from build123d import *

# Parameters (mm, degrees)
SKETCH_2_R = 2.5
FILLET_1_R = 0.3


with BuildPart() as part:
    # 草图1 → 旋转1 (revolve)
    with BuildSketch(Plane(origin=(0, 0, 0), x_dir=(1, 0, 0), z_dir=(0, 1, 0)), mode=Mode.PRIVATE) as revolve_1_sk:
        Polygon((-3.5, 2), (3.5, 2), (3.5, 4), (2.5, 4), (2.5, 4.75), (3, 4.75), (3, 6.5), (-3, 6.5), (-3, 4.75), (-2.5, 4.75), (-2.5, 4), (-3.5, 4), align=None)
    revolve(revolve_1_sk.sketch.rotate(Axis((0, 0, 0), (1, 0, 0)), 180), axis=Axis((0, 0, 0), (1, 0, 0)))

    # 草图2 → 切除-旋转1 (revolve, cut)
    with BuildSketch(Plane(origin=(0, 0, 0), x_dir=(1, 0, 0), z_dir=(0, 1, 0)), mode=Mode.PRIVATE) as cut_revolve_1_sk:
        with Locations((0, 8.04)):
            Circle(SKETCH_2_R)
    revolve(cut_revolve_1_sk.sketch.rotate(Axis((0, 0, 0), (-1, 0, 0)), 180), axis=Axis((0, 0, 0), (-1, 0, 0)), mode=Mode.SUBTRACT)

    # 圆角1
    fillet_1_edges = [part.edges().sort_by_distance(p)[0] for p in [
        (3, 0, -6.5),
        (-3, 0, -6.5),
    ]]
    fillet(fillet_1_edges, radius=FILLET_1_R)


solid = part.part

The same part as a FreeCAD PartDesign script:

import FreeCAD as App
import Part
import Sketcher

V = App.Vector
Q = App.Units.Quantity


def edges_at(feature, points):
    """Names of the edges that pass closest to the given points."""
    edges = feature.Shape.Edges
    near = lambda p: min(range(len(edges)), key=lambda i: edges[i].distToShape(Part.Vertex(*p))[0])
    return sorted({f"Edge{near(p) + 1}" for p in points})


def add_polygon(sketch, points):
    """Adds a closed chain of lines whose ends are joined by coincident constraints."""
    first, n = sketch.GeometryCount, len(points)
    for a, b in zip(points, points[1:] + points[:1]):
        sketch.addGeometry(Part.LineSegment(App.Vector(*a, 0), App.Vector(*b, 0)), False)
    for i in range(n):
        sketch.addConstraint(Sketcher.Constraint("Coincident", first + i, 2, first + (i + 1) % n, 1))

doc = App.newDocument("Part")
body = doc.addObject("PartDesign::Body", "Body")

# Sketch on XZ plane
sketch1 = body.newObject("Sketcher::SketchObject", "Sketch")
sketch1.AttachmentSupport = (doc.getObject("XZ_Plane"), [""])
sketch1.MapMode = "FlatFace"
add_polygon(sketch1, [(-3.5, -2), (3.5, -2), (3.5, -4), (2.5, -4), (2.5, -4.75), (3, -4.75), (3, -6.5), (-3, -6.5), (-3, -4.75), (-2.5, -4.75), (-2.5, -4), (-3.5, -4)])  # lines 0-11
sketch1.addConstraint([
    Sketcher.Constraint("Horizontal", 0),
    Sketcher.Constraint("Vertical", 1),
    Sketcher.Constraint("Horizontal", 2),
    Sketcher.Constraint("Vertical", 3),
    Sketcher.Constraint("Horizontal", 4),
    Sketcher.Constraint("Vertical", 5),
    Sketcher.Constraint("Horizontal", 6),
    Sketcher.Constraint("Vertical", 7),
    Sketcher.Constraint("Horizontal", 8),
    Sketcher.Constraint("Vertical", 9),
    Sketcher.Constraint("Horizontal", 10),
    Sketcher.Constraint("Vertical", 11),
    Sketcher.Constraint("Symmetric", 4, 2, 7, 2, -2),
    Sketcher.Constraint("Symmetric", 2, 2, 9, 2, -2),
    Sketcher.Constraint("Equal", 2, 10),
    Sketcher.Constraint("DistanceX", 0, 1, 0, 2, Q("7 mm")),
    Sketcher.Constraint("DistanceX", 2, 2, 2, 1, Q("1 mm")),
    Sketcher.Constraint("DistanceX", 6, 2, 6, 1, Q("6 mm")),
    Sketcher.Constraint("DistanceY", 1, 2, 1, 1, Q("2 mm")),
    Sketcher.Constraint("DistanceY", 0, 2, -1, 1, Q("2 mm")),
    Sketcher.Constraint("DistanceY", 3, 2, 3, 1, Q("0.75 mm")),
    Sketcher.Constraint("DistanceY", 5, 2, 5, 1, Q("1.75 mm")),
])
revolution = body.newObject("PartDesign::Revolution", "Revolution")
revolution.Profile = sketch1
revolution.ReferenceAxis = (sketch1, ["H_Axis"])
revolution.Angle = 360

# Sketch on XZ plane
sketch2 = body.newObject("Sketcher::SketchObject", "Sketch001")
sketch2.AttachmentSupport = (doc.getObject("XZ_Plane"), [""])
sketch2.MapMode = "FlatFace"
sketch2.addGeometry(Part.Circle(V(0, -8.04, 0), V(0, 0, 1), 2.5), False)
sketch2.addConstraint([
    Sketcher.Constraint("PointOnObject", 0, 3, -2),
    Sketcher.Constraint("Diameter", 0, Q("5 mm")),
    Sketcher.Constraint("DistanceY", 0, 3, -1, 1, Q("8.04 mm")),
])
groove = body.newObject("PartDesign::Groove", "Groove")
groove.Profile = sketch2
groove.ReferenceAxis = (sketch2, ["H_Axis"])
groove.Angle = 360
doc.recompute()

fillet = body.newObject("PartDesign::Fillet", "Fillet")
fillet.Base = (groove, edges_at(groove, [(3, 0, -6.5), (-3, 0, -6.5)]))
fillet.Radius = 0.3

doc.recompute()
